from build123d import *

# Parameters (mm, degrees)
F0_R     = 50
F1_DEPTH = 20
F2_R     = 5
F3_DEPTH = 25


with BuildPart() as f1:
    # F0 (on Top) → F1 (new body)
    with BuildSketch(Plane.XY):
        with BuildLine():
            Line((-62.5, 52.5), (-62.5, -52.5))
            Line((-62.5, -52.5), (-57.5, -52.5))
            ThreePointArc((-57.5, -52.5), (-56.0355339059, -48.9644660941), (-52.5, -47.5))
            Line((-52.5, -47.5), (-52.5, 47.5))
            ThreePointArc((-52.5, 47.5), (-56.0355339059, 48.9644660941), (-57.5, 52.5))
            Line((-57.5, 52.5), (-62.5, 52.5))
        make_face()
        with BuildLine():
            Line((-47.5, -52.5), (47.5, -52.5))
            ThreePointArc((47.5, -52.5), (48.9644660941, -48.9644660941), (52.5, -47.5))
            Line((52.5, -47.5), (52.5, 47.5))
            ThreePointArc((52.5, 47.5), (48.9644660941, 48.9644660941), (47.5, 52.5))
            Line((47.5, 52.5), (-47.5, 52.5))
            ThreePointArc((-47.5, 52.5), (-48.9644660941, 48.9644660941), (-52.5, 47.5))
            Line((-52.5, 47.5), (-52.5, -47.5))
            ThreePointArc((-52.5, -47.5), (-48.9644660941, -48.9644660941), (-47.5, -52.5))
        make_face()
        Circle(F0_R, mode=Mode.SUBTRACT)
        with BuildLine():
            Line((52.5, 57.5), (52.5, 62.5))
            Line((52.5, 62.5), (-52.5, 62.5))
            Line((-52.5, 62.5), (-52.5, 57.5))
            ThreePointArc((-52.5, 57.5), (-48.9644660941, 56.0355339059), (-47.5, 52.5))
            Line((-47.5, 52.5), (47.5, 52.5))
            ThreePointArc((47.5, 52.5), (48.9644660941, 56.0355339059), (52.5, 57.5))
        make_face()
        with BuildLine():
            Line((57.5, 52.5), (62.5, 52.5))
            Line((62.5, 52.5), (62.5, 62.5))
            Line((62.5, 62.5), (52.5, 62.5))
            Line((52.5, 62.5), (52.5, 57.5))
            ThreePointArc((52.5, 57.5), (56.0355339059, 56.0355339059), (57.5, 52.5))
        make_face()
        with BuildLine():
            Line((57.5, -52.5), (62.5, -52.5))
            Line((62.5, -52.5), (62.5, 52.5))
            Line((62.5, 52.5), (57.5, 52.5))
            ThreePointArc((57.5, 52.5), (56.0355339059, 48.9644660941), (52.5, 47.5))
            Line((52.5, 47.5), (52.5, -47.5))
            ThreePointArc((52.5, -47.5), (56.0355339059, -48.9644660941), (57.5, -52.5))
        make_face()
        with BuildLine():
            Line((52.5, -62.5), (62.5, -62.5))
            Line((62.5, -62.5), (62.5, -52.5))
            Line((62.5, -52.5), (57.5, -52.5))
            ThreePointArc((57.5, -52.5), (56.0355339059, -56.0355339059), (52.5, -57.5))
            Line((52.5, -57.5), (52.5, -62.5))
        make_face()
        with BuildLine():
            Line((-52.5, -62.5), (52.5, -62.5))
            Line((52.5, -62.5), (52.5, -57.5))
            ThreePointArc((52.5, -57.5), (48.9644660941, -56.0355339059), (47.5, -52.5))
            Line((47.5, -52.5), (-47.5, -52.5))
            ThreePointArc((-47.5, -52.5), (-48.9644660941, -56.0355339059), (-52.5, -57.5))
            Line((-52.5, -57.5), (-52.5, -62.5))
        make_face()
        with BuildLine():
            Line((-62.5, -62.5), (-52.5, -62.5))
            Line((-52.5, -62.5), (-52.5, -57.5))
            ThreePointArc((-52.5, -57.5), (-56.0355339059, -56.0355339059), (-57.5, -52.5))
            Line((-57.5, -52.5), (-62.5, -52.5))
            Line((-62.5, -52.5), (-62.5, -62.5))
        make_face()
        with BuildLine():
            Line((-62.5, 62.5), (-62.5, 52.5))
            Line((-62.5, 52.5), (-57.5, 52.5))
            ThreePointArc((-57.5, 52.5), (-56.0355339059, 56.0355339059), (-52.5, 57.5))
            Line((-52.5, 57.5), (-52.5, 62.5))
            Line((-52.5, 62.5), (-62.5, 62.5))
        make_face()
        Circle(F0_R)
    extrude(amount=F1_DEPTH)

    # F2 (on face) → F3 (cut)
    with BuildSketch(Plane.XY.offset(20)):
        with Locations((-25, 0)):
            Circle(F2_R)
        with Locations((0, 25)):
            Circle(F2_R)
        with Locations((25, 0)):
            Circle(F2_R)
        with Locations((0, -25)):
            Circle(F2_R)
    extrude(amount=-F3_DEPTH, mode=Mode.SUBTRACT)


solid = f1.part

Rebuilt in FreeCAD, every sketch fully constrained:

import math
import FreeCAD as App
import Part
import Sketcher
from FreeCAD import Vector
Q = App.Units.Quantity

doc = App.newDocument("Part")
body = doc.addObject("PartDesign::Body", "Body")

# Sketch on XY plane
sketch1 = body.newObject("Sketcher::SketchObject", "Sketch")
sketch1.AttachmentSupport = (doc.getObject("XY_Plane"), [""])
sketch1.MapMode = "FlatFace"
sketch1.addGeometry([
    Part.LineSegment(Vector(-62, -62, 0), Vector(62, -62, 0)),  # 0
    Part.LineSegment(Vector(62, -62, 0), Vector(62, 62, 0)),  # 1
    Part.LineSegment(Vector(62, 62, 0), Vector(-62, 62, 0)),  # 2
    Part.LineSegment(Vector(-62, 62, 0), Vector(-62, -62, 0)),  # 3
    Part.ArcOfCircle(Part.Circle(Vector(-52, 52, 0), Vector(0, 0, 1), 5), math.radians(0), math.radians(90)),  # 4
    Part.ArcOfCircle(Part.Circle(Vector(-52, 52, 0), Vector(0, 0, 1), 5), math.radians(-90), math.radians(0)),  # 5
    Part.ArcOfCircle(Part.Circle(Vector(-52, 52, 0), Vector(0, 0, 1), 5), math.radians(180), math.radians(270)),  # 6
    Part.ArcOfCircle(Part.Circle(Vector(-52, 52, 0), Vector(0, 0, 1), 5), math.radians(90), math.radians(180)),  # 7
    Part.ArcOfCircle(Part.Circle(Vector(-52, -52, 0), Vector(0, 0, 1), 5), math.radians(90), math.radians(180)),  # 8
    Part.ArcOfCircle(Part.Circle(Vector(-52, -52, 0), Vector(0, 0, 1), 5), math.radians(0), math.radians(90)),  # 9
    Part.ArcOfCircle(Part.Circle(Vector(-52, -52, 0), Vector(0, 0, 1), 5), math.radians(-90), math.radians(0)),  # 10
    Part.ArcOfCircle(Part.Circle(Vector(-52, -52, 0), Vector(0, 0, 1), 5), math.radians(180), math.radians(270)),  # 11
    Part.ArcOfCircle(Part.Circle(Vector(52, -52, 0), Vector(0, 0, 1), 5), math.radians(90), math.radians(180)),  # 12
    Part.ArcOfCircle(Part.Circle(Vector(52, -52, 0), Vector(0, 0, 1), 5), math.radians(0), math.radians(90)),  # 13
    Part.ArcOfCircle(Part.Circle(Vector(52, -52, 0), Vector(0, 0, 1), 5), math.radians(-90), math.radians(0)),  # 14
    Part.ArcOfCircle(Part.Circle(Vector(52, -52, 0), Vector(0, 0, 1), 5), math.radians(180), math.radians(270)),  # 15
    Part.ArcOfCircle(Part.Circle(Vector(52, 52, 0), Vector(0, 0, 1), 5), math.radians(180), math.radians(270)),  # 16
    Part.ArcOfCircle(Part.Circle(Vector(52, 52, 0), Vector(0, 0, 1), 5), math.radians(90), math.radians(180)),  # 17
    Part.ArcOfCircle(Part.Circle(Vector(52, 52, 0), Vector(0, 0, 1), 5), math.radians(0), math.radians(90)),  # 18
    Part.ArcOfCircle(Part.Circle(Vector(52, 52, 0), Vector(0, 0, 1), 5), math.radians(-90), math.radians(0)),  # 19
], False)
sketch1.addConstraint([
    Sketcher.Constraint("Coincident", 0, 2, 1, 1),
    Sketcher.Constraint("Coincident", 1, 2, 2, 1),
    Sketcher.Constraint("Coincident", 2, 2, 3, 1),
    Sketcher.Constraint("Coincident", 3, 2, 0, 1),
    Sketcher.Constraint("Tangent", 4, 1, 5, 2),
    Sketcher.Constraint("Tangent", 5, 1, 6, 2),
    Sketcher.Constraint("Tangent", 6, 1, 7, 2),
    Sketcher.Constraint("Tangent", 7, 1, 4, 2),
    Sketcher.Constraint("Tangent", 8, 1, 9, 2),
    Sketcher.Constraint("Tangent", 9, 1, 10, 2),
    Sketcher.Constraint("Tangent", 10, 1, 11, 2),
    Sketcher.Constraint("Tangent", 11, 1, 8, 2),
    Sketcher.Constraint("Tangent", 12, 1, 13, 2),
    Sketcher.Constraint("Tangent", 13, 1, 14, 2),
    Sketcher.Constraint("Tangent", 14, 1, 15, 2),
    Sketcher.Constraint("Tangent", 15, 1, 12, 2),
    Sketcher.Constraint("Tangent", 16, 1, 17, 2),
    Sketcher.Constraint("Tangent", 17, 1, 18, 2),
    Sketcher.Constraint("Tangent", 18, 1, 19, 2),
    Sketcher.Constraint("Tangent", 19, 1, 16, 2),
    Sketcher.Constraint("Horizontal", 0),
    Sketcher.Constraint("Vertical", 1),
    Sketcher.Constraint("Horizontal", 2),
    Sketcher.Constraint("Vertical", 3),
    Sketcher.Constraint("Equal", 4, 5),
    Sketcher.Constraint("Equal", 7, 8),
    Sketcher.Constraint("Equal", 8, 9),
    Sketcher.Constraint("Equal", 11, 12),
    Sketcher.Constraint("Equal", 12, 13),
    Sketcher.Constraint("Equal", 15, 16),
    Sketcher.Constraint("Equal", 16, 17),
    Sketcher.Constraint("Symmetric", 4, 3, 12, 3, -1, 1),
    Sketcher.Constraint("Symmetric", 8, 3, 16, 3, -1, 1),
    Sketcher.Constraint("Symmetric", 0, 2, 2, 2, -1, 1),
    Sketcher.Constraint("Symmetric", 8, 3, 12, 3, -2),
    Sketcher.Constraint("Horizontal", 19, 3, 4, 1),
    Sketcher.Constraint("Horizontal", 4, 1, 6, 1),
    Sketcher.Constraint("Horizontal", 15, 3, 9, 1),
    Sketcher.Constraint("Horizontal", 9, 1, 11, 1),
    Sketcher.Constraint("Horizontal", 11, 1, 13, 1),
    Sketcher.Constraint("Horizontal", 13, 1, 15, 1),
    Sketcher.Constraint("Horizontal", 6, 1, 16, 1),
    Sketcher.Constraint("Horizontal", 16, 1, 18, 1),
    Sketcher.Constraint("Vertical", 11, 3, 5, 1),
    Sketcher.Constraint("Vertical", 5, 1, 7, 1),
    Sketcher.Constraint("Vertical", 7, 1, 8, 1),
    Sketcher.Constraint("Vertical", 8, 1, 10, 1),
    Sketcher.Constraint("Vertical", 19, 3, 12, 1),
    Sketcher.Constraint("Vertical", 12, 1, 14, 1),
    Sketcher.Constraint("Vertical", 14, 1, 17, 1),
    Sketcher.Constraint("Vertical", 17, 1, 19, 1),
    Sketcher.Constraint("Equal", 2, 1),
    Sketcher.Constraint("Radius", 4, Q("5 mm")),
    Sketcher.Constraint("DistanceX", 0, 1, 0, 2, Q("125 mm")),
    Sketcher.Constraint("DistanceY", 8, 3, 4, 3, Q("105 mm")),
    Sketcher.Constraint("DistanceX", 8, 3, 12, 3, Q("105 mm")),
])
pad1 = body.newObject("PartDesign::Pad", "Pad")
pad1.Profile = sketch1
pad1.Length = 20

# Sketch on XY plane
sketch2 = body.newObject("Sketcher::SketchObject", "Sketch001")
sketch2.AttachmentSupport = (doc.getObject("XY_Plane"), [""])
sketch2.MapMode = "FlatFace"
sketch2.AttachmentOffset = App.Placement(Vector(0, 0, 20), App.Rotation())
sketch2.addGeometry([
    Part.Circle(Vector(-25, 0, 0), Vector(0, 0, 1), 5),
    Part.Circle(Vector(0, 25, 0), Vector(0, 0, 1), 5),
    Part.Circle(Vector(25, 0, 0), Vector(0, 0, 1), 5),
    Part.Circle(Vector(0, -25, 0), Vector(0, 0, 1), 5),
], False)
sketch2.addConstraint([
    Sketcher.Constraint("Equal", 0, 1),
    Sketcher.Constraint("Equal", 1, 2),
    Sketcher.Constraint("Equal", 2, 3),
    Sketcher.Constraint("Symmetric", 0, 3, 2, 3, -1, 1),
    Sketcher.Constraint("Symmetric", 1, 3, 3, 3, -1, 1),
    Sketcher.Constraint("PointOnObject", 0, 3, -1),
    Sketcher.Constraint("PointOnObject", 1, 3, -2),
    Sketcher.Constraint("Diameter", 0, Q("10 mm")),
    Sketcher.Constraint("DistanceX", 0, 3, -1, 1, Q("25 mm")),
    Sketcher.Constraint("DistanceY", -1, 1, 1, 3, Q("25 mm")),
])
pocket1 = body.newObject("PartDesign::Pocket", "Pocket")
pocket1.Profile = sketch2
pocket1.Length = 25

doc.recompute()
